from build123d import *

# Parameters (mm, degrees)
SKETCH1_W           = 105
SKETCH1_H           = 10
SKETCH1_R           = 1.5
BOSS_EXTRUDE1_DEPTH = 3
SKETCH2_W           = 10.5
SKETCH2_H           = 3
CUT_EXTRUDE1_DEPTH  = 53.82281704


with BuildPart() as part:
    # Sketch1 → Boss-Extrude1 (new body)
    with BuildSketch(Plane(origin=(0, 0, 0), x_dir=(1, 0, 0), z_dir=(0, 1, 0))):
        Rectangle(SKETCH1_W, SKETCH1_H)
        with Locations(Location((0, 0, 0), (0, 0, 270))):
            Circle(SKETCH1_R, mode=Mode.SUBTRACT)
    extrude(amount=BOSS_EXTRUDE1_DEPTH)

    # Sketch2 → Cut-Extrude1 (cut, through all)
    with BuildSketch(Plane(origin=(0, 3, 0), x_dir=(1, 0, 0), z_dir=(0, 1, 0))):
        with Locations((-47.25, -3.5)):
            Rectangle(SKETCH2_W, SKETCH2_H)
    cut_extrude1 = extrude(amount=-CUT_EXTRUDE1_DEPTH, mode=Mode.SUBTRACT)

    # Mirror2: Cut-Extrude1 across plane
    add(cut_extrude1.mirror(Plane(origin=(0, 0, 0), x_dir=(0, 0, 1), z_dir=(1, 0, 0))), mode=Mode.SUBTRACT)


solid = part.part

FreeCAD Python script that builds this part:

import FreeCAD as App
import Part
import Sketcher
from FreeCAD import Vector

doc = App.newDocument("Part")
params = doc.addObject("Spreadsheet::Sheet", "Params")
for row, (alias, value) in enumerate([
    ("sketch1_diameter", "3 mm"),
    ("sketch1_width", "105 mm"),
    ("sketch1_height", "10 mm"),
    ("pad1_length", "3 mm"),
    ("sketch2_height", "3 mm"),
    ("sketch2_width", "10.5 mm"),
], start=1):
    params.set(f"A{row}", alias)
    params.set(f"B{row}", "=" + value)
    params.setAlias(f"B{row}", alias)

body = doc.addObject("PartDesign::Body", "Body")

sketch1 = body.newObject("Sketcher::SketchObject", "Sketch")
sketch1.AttachmentSupport = (doc.getObject("XZ_Plane"), [""])
sketch1.MapMode = "FlatFace"
sketch1.addGeometry(Part.LineSegment(Vector(-52.5, -5, 0), Vector(-52.5, 5, 0)), False)
sketch1.addGeometry(Part.LineSegment(Vector(-52.5, 5, 0), Vector(52.5, 5, 0)), False)
sketch1.addGeometry(Part.LineSegment(Vector(52.5, 5, 0), Vector(52.5, -5, 0)), False)
sketch1.addGeometry(Part.LineSegment(Vector(52.5, -5, 0), Vector(-52.5, -5, 0)), False)
sketch1.addGeometry(Part.Circle(Vector(0, 0, 0), Vector(0, 0, 1), 1.5), False)
sketch1.addConstraint(Sketcher.Constraint("Coincident", 0, 2, 1, 1))
sketch1.addConstraint(Sketcher.Constraint("Coincident", 1, 2, 2, 1))
sketch1.addConstraint(Sketcher.Constraint("Coincident", 2, 2, 3, 1))
sketch1.addConstraint(Sketcher.Constraint("Coincident", 3, 2, 0, 1))
sketch1.addConstraint(Sketcher.Constraint("Vertical", 0))
sketch1.addConstraint(Sketcher.Constraint("Horizontal", 1))
sketch1.addConstraint(Sketcher.Constraint("Vertical", 2))
sketch1.addConstraint(Sketcher.Constraint("Horizontal", 3))
sketch1.addConstraint(Sketcher.Constraint("Coincident", 4, 3, -1, 1))
sketch1.addConstraint(Sketcher.Constraint("Symmetric", 0, 2, 2, 2, -1, 1))
sketch1.addConstraint(Sketcher.Constraint("Diameter", 4, 3.0))
sketch1.addConstraint(Sketcher.Constraint("DistanceX", 1, 1, 1, 2, 105.0))
sketch1.addConstraint(Sketcher.Constraint("DistanceY", 0, 1, 0, 2, 10.0))
sketch1.setExpression("Constraints[10]", "Params.sketch1_diameter")
sketch1.setExpression("Constraints[11]", "Params.sketch1_width")
sketch1.setExpression("Constraints[12]", "Params.sketch1_height")
pad1 = body.newObject("PartDesign::Pad", "Pad")
pad1.Profile = sketch1
pad1.setExpression("Length", "Params.pad1_length")
pad1.Reversed = True

sketch2 = body.newObject("Sketcher::SketchObject", "Sketch001")
sketch2.AttachmentSupport = (doc.getObject("XZ_Plane"), [""])
sketch2.MapMode = "FlatFace"
sketch2.AttachmentOffset = App.Placement(Vector(0, 0, -3), App.Rotation())
sketch2.addGeometry(Part.LineSegment(Vector(-52.5, 2, 0), Vector(-52.5, 5, 0)), False)
sketch2.addGeometry(Part.LineSegment(Vector(-52.5, 5, 0), Vector(-42, 5, 0)), False)
sketch2.addGeometry(Part.LineSegment(Vector(-42, 5, 0), Vector(-42, 2, 0)), False)
sketch2.addGeometry(Part.LineSegment(Vector(-42, 2, 0), Vector(-52.5, 2, 0)), False)
sketch2.addConstraint(Sketcher.Constraint("Coincident", 0, 2, 1, 1))
sketch2.addConstraint(Sketcher.Constraint("Coincident", 1, 2, 2, 1))
sketch2.addConstraint(Sketcher.Constraint("Coincident", 2, 2, 3, 1))
sketch2.addConstraint(Sketcher.Constraint("Coincident", 3, 2, 0, 1))
sketch2.addConstraint(Sketcher.Constraint("Vertical", 0))
sketch2.addConstraint(Sketcher.Constraint("Horizontal", 1))
sketch2.addConstraint(Sketcher.Constraint("Vertical", 2))
sketch2.addConstraint(Sketcher.Constraint("Horizontal", 3))
sketch2.addConstraint(Sketcher.Constraint("DistanceY", 0, 1, 0, 2, 3.0))
sketch2.addConstraint(Sketcher.Constraint("DistanceX", 1, 1, 1, 2, 10.5))
sketch2.addConstraint(Sketcher.Constraint("DistanceY", -1, 1, 0, 2, 5.0))
sketch2.addConstraint(Sketcher.Constraint("DistanceX", 1, 2, -1, 1, 42.0))
sketch2.setExpression("Constraints[8]", "Params.sketch2_height")
sketch2.setExpression("Constraints[9]", "Params.sketch2_width")
pocket1 = body.newObject("PartDesign::Pocket", "Pocket")
pocket1.Profile = sketch2
pocket1.Type = "ThroughAll"
pocket1.Reversed = True
doc.recompute()

mirrored = body.newObject("PartDesign::Mirrored", "Mirrored")
mirrored.Originals = [pocket1]
mirrored.MirrorPlane = (doc.getObject("YZ_Plane"), [""])
body.Tip = mirrored

doc.recompute()
